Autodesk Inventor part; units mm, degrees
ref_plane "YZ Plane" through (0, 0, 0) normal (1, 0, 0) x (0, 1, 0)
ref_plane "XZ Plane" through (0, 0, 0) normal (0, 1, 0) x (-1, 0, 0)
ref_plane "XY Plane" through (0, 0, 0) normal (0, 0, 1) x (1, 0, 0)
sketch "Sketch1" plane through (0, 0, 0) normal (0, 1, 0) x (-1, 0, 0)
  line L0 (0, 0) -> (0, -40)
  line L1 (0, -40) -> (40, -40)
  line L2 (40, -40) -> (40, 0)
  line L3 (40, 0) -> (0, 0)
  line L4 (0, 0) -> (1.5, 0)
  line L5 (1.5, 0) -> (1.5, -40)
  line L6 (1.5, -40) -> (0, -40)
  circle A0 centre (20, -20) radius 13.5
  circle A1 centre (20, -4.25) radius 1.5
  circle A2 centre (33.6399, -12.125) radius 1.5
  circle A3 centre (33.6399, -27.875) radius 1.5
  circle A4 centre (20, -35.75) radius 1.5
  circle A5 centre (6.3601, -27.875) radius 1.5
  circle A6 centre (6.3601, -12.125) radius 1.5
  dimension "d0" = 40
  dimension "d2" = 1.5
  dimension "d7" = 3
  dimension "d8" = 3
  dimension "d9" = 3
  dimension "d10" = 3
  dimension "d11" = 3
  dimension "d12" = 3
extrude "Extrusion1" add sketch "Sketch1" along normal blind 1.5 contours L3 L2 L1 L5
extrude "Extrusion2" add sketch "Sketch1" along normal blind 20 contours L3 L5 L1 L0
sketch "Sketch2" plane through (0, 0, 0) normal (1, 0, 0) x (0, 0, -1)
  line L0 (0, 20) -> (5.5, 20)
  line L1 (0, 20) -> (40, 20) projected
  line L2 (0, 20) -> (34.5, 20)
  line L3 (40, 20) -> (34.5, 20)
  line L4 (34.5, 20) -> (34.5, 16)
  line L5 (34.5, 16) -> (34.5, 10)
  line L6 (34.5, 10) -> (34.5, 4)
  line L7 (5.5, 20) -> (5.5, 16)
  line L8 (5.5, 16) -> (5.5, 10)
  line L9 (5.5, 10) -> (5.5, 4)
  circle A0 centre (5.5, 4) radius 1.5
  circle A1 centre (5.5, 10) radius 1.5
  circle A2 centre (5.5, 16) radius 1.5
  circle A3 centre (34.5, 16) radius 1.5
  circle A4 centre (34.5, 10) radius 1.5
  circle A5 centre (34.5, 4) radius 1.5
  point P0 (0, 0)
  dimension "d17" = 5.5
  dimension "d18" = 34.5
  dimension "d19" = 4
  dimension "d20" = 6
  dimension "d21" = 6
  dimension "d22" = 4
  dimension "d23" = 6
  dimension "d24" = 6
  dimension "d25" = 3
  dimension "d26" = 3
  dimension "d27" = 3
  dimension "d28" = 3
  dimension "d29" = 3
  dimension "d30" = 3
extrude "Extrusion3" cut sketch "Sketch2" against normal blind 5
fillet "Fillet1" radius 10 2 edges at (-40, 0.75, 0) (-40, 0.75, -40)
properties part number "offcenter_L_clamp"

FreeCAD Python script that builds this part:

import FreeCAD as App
import Part
import Sketcher


def edges_at(feature, points):
    """Names of the edges that pass closest to the given points."""
    edges = feature.Shape.Edges
    near = lambda p: min(range(len(edges)), key=lambda i: edges[i].distToShape(Part.Vertex(*p))[0])
    return sorted({f"Edge{near(p) + 1}" for p in points})


def add_polygon(sketch, points):
    """Adds a closed chain of lines whose ends are joined by coincident constraints."""
    first, n = sketch.GeometryCount, len(points)
    for a, b in zip(points, points[1:] + points[:1]):
        sketch.addGeometry(Part.LineSegment(App.Vector(*a, 0), App.Vector(*b, 0)), False)
    for i in range(n):
        sketch.addConstraint(Sketcher.Constraint("Coincident", first + i, 2, first + (i + 1) % n, 1))

doc = App.newDocument("Part")
body = doc.addObject("PartDesign::Body", "Body")

# Sketch on XZ plane
sketch1 = doc.addObject("Sketcher::SketchObject", "Sketch")
body.addObject(sketch1)
sketch1.AttachmentSupport = (doc.XZ_Plane, [""])
sketch1.MapMode = "FlatFace"
add_polygon(sketch1, [(-40, 0), (-1.5, 0), (-1.5, -40), (-40, -40)])  # lines 0-3
sketch1.addGeometry(Part.Circle(App.Vector(-6.3601, -27.875, 0), App.Vector(0, 0, 1), 1.5), False)  # 4
sketch1.addGeometry(Part.Circle(App.Vector(-20, -35.75, 0), App.Vector(0, 0, 1), 1.5), False)  # 5
sketch1.addGeometry(Part.Circle(App.Vector(-33.6399, -27.875, 0), App.Vector(0, 0, 1), 1.5), False)  # 6
sketch1.addGeometry(Part.Circle(App.Vector(-6.3601, -12.125, 0), App.Vector(0, 0, 1), 1.5), False)  # 7
sketch1.addGeometry(Part.Circle(App.Vector(-20, -20, 0), App.Vector(0, 0, 1), 13.5), False)  # 8
sketch1.addGeometry(Part.Circle(App.Vector(-33.6399, -12.125, 0), App.Vector(0, 0, 1), 1.5), False)  # 9
sketch1.addGeometry(Part.Circle(App.Vector(-20, -4.25, 0), App.Vector(0, 0, 1), 1.5), False)  # 10
sketch1.addConstraint([
    Sketcher.Constraint("Horizontal", 0),
    Sketcher.Constraint("Vertical", 1),
    Sketcher.Constraint("Horizontal", 2),
    Sketcher.Constraint("Vertical", 3),
    Sketcher.Constraint("Equal", 4, 5),
    Sketcher.Constraint("Equal", 5, 6),
    Sketcher.Constraint("Equal", 6, 7),
    Sketcher.Constraint("Equal", 7, 9),
    Sketcher.Constraint("Equal", 9, 10),
    Sketcher.Constraint("PointOnObject", 0, 2, -1),
    Sketcher.Constraint("Horizontal", 4, 3, 6, 3),
    Sketcher.Constraint("Horizontal", 7, 3, 9, 3),
    Sketcher.Constraint("Vertical", 4, 3, 7, 3),
    Sketcher.Constraint("Vertical", 5, 3, 8, 3),
    Sketcher.Constraint("Vertical", 6, 3, 9, 3),
    Sketcher.Constraint("Vertical", 8, 3, 10, 3),
    Sketcher.Constraint("Diameter", 4, 3.0),
    Sketcher.Constraint("DistanceY", 1, 2, 1, 1, 40.0),
    Sketcher.Constraint("Diameter", 8, 27.0),
    Sketcher.Constraint("DistanceX", 2, 2, -1, 1, 40.0),
    Sketcher.Constraint("DistanceX", 0, 2, -1, 1, 1.5),
    Sketcher.Constraint("DistanceX", 5, 3, -1, 1, 20.0),
    Sketcher.Constraint("DistanceY", 8, 3, -1, 1, 20.0),
    Sketcher.Constraint("DistanceX", 4, 3, -1, 1, 6.36),
    Sketcher.Constraint("DistanceY", 5, 3, -1, 1, 35.75),
    Sketcher.Constraint("DistanceX", 6, 3, -1, 1, 33.64),
    Sketcher.Constraint("DistanceY", 10, 3, -1, 1, 4.25),
    Sketcher.Constraint("DistanceY", 4, 3, 7, 3, 15.75),
    Sketcher.Constraint("DistanceY", 4, 3, -1, 1, 27.875),
])
pad1 = doc.addObject("PartDesign::Pad", "Pad")
body.addObject(pad1)
pad1.Profile = sketch1
pad1.Length = 1.5
pad1.Reversed = True

# Sketch on XZ plane
sketch2 = doc.addObject("Sketcher::SketchObject", "Sketch001")
body.addObject(sketch2)
sketch2.AttachmentSupport = (doc.XZ_Plane, [""])
sketch2.MapMode = "FlatFace"
add_polygon(sketch2, [(-1.5, 0), (0, 0), (0, -40), (-1.5, -40)])  # lines 0-3
sketch2.addConstraint([
    Sketcher.Constraint("Horizontal", 0),
    Sketcher.Constraint("Vertical", 1),
    Sketcher.Constraint("Horizontal", 2),
    Sketcher.Constraint("Vertical", 3),
    Sketcher.Constraint("Coincident", 0, 2, -1, 1),
    Sketcher.Constraint("DistanceY", 1, 2, 1, 1, 40.0),
    Sketcher.Constraint("DistanceX", 0, 1, 0, 2, 1.5),
])
pad2 = doc.addObject("PartDesign::Pad", "Pad001")
body.addObject(pad2)
pad2.Profile = sketch2
pad2.Length = 20
pad2.Reversed = True

# Sketch on YZ plane
sketch3 = doc.addObject("Sketcher::SketchObject", "Sketch002")
body.addObject(sketch3)
sketch3.AttachmentSupport = (doc.YZ_Plane, [""])
sketch3.MapMode = "FlatFace"
sketch3.addGeometry([
    Part.Circle(App.Vector(4, -34.5, 0), App.Vector(0, 0, 1), 1.5),  # 0
    Part.Circle(App.Vector(10, -34.5, 0), App.Vector(0, 0, 1), 1.5),  # 1
    Part.Circle(App.Vector(16, -34.5, 0), App.Vector(0, 0, 1), 1.5),  # 2
    Part.Circle(App.Vector(4, -5.5, 0), App.Vector(0, 0, 1), 1.5),  # 3
    Part.Circle(App.Vector(10, -5.5, 0), App.Vector(0, 0, 1), 1.5),  # 4
    Part.Circle(App.Vector(16, -5.5, 0), App.Vector(0, 0, 1), 1.5),  # 5
], False)
sketch3.addConstraint([
    Sketcher.Constraint("Equal", 0, 1),
    Sketcher.Constraint("Equal", 1, 2),
    Sketcher.Constraint("Equal", 2, 3),
    Sketcher.Constraint("Equal", 3, 4),
    Sketcher.Constraint("Equal", 4, 5),
    Sketcher.Constraint("Horizontal", 0, 3, 1, 3),
    Sketcher.Constraint("Horizontal", 1, 3, 2, 3),
    Sketcher.Constraint("Horizontal", 3, 3, 4, 3),
    Sketcher.Constraint("Horizontal", 4, 3, 5, 3),
    Sketcher.Constraint("Vertical", 0, 3, 3, 3),
    Sketcher.Constraint("Vertical", 1, 3, 4, 3),
    Sketcher.Constraint("Vertical", 2, 3, 5, 3),
    Sketcher.Constraint("Diameter", 0, 3.0),
    Sketcher.Constraint("DistanceX", -1, 1, 0, 3, 4.0),
    Sketcher.Constraint("DistanceX", 0, 3, 1, 3, 6.0),
    Sketcher.Constraint("DistanceX", 1, 3, 2, 3, 6.0),
    Sketcher.Constraint("DistanceY", 0, 3, -1, 1, 34.5),
    Sketcher.Constraint("DistanceY", 3, 3, -1, 1, 5.5),
])
pocket1 = doc.addObject("PartDesign::Pocket", "Pocket")
body.addObject(pocket1)
pocket1.Profile = sketch3
pocket1.Length = 5
doc.recompute()

fillet = doc.addObject("PartDesign::Fillet", "Fillet")
body.addObject(fillet)
fillet.Base = (pocket1, edges_at(pocket1, [(-40, 0.75, 0), (-40, 0.75, -40)]))
fillet.Radius = 10

doc.recompute()
